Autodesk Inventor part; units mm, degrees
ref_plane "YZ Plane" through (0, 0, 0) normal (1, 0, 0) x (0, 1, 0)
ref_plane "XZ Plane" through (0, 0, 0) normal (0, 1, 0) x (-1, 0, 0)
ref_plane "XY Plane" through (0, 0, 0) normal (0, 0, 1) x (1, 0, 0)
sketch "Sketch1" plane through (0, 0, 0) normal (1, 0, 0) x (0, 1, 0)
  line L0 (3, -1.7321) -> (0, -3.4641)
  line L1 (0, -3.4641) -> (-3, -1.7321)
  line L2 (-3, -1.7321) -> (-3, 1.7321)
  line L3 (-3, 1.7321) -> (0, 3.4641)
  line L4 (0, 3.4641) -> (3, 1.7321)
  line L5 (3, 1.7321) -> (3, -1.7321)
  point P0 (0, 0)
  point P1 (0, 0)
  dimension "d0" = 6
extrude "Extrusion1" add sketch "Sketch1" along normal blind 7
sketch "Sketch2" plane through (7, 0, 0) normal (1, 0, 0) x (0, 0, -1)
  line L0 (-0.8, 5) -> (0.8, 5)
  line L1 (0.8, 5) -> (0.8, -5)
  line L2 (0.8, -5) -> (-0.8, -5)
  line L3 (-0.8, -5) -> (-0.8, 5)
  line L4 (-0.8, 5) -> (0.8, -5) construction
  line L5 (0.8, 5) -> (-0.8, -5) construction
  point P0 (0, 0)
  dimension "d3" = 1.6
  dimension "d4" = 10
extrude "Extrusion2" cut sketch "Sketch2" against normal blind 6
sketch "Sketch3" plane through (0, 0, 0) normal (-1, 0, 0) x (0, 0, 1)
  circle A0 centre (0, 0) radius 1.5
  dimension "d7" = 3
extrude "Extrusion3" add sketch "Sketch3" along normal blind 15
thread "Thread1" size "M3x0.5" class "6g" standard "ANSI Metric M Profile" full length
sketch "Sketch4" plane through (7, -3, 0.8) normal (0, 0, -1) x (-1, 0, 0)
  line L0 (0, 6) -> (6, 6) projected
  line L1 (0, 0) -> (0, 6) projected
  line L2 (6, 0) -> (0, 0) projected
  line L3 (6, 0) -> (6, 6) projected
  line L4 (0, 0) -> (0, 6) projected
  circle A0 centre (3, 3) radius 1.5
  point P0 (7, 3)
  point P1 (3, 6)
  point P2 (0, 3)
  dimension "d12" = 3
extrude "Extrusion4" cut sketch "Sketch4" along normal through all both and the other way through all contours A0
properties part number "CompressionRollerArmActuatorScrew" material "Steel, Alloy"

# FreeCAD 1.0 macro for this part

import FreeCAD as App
import Part
import Sketcher

V = App.Vector
Q = App.Units.Quantity

doc = App.newDocument("Part")
body = doc.addObject("PartDesign::Body", "Body")

# Sketch on YZ plane
sketch1 = body.newObject("Sketcher::SketchObject", "Sketch")
sketch1.AttachmentSupport = (doc.getObject("YZ_Plane"), [""])
sketch1.MapMode = "FlatFace"
sketch1.addGeometry([
    Part.LineSegment(V(0, -3.5, 0), V(3, -1.7, 0)),  # 0
    Part.LineSegment(V(3, -1.7, 0), V(3, 1.7, 0)),  # 1
    Part.LineSegment(V(3, 1.7, 0), V(0, 3.5, 0)),  # 2
    Part.LineSegment(V(0, 3.5, 0), V(-3, 1.7, 0)),  # 3
    Part.LineSegment(V(-3, 1.7, 0), V(-3, -1.7, 0)),  # 4
    Part.LineSegment(V(-3, -1.7, 0), V(0, -3.5, 0)),  # 5
], False)
sketch1.addConstraint([
    Sketcher.Constraint("Coincident", 0, 2, 1, 1),
    Sketcher.Constraint("Coincident", 1, 2, 2, 1),
    Sketcher.Constraint("Coincident", 2, 2, 3, 1),
    Sketcher.Constraint("Coincident", 3, 2, 4, 1),
    Sketcher.Constraint("Coincident", 4, 2, 5, 1),
    Sketcher.Constraint("Coincident", 5, 2, 0, 1),
    Sketcher.Constraint("Vertical", 1),
    Sketcher.Constraint("Vertical", 4),
    Sketcher.Constraint("Symmetric", 0, 2, 3, 2, -1, 1),
    Sketcher.Constraint("Symmetric", 2, 2, 5, 2, -1, 1),
    Sketcher.Constraint("PointOnObject", 2, 2, -2),
    Sketcher.Constraint("Parallel", 2, 5),
    Sketcher.Constraint("Horizontal", 1, 2, 3, 2),
    Sketcher.Constraint("DistanceX", 3, 2, 1, 2, 6.0),
    Sketcher.Constraint("Angle", 0, Q("29.9993 deg")),
    Sketcher.Constraint("DistanceY", 1, 1, 1, 2, 3.4642),
])
pad1 = body.newObject("PartDesign::Pad", "Pad")
pad1.Profile = sketch1
pad1.Length = 7

# Sketch on YZ plane
sketch2 = body.newObject("Sketcher::SketchObject", "Sketch001")
sketch2.AttachmentSupport = (doc.getObject("YZ_Plane"), [""])
sketch2.MapMode = "FlatFace"
sketch2.AttachmentOffset = App.Placement(V(0, 0, 7), App.Rotation())
sketch2.addGeometry([
    Part.LineSegment(V(5, -0.8, 0), V(5, 0.8, 0)),
    Part.LineSegment(V(5, 0.8, 0), V(-5, 0.8, 0)),
    Part.LineSegment(V(-5, 0.8, 0), V(-5, -0.8, 0)),
    Part.LineSegment(V(-5, -0.8, 0), V(5, -0.8, 0)),
], False)
sketch2.addConstraint([
    Sketcher.Constraint("Coincident", 0, 2, 1, 1),
    Sketcher.Constraint("Coincident", 1, 2, 2, 1),
    Sketcher.Constraint("Coincident", 2, 2, 3, 1),
    Sketcher.Constraint("Coincident", 3, 2, 0, 1),
    Sketcher.Constraint("Vertical", 0),
    Sketcher.Constraint("Horizontal", 1),
    Sketcher.Constraint("Vertical", 2),
    Sketcher.Constraint("Horizontal", 3),
    Sketcher.Constraint("Symmetric", 0, 2, 2, 2, -1, 1),
    Sketcher.Constraint("DistanceX", 1, 2, 1, 1, 10.0),
    Sketcher.Constraint("DistanceY", 0, 1, 0, 2, 1.6),
])
pocket1 = body.newObject("PartDesign::Pocket", "Pocket")
pocket1.Profile = sketch2
pocket1.Length = 6

# Sketch on YZ plane
sketch3 = body.newObject("Sketcher::SketchObject", "Sketch002")
sketch3.AttachmentSupport = (doc.getObject("YZ_Plane"), [""])
sketch3.MapMode = "FlatFace"
sketch3.addGeometry(Part.Circle(V(0, 0, 0), V(0, 0, 1), 1.5), False)
sketch3.addConstraint([
    Sketcher.Constraint("Coincident", 0, 3, -1, 1),
    Sketcher.Constraint("Diameter", 0, 3.0),
])
pad2 = body.newObject("PartDesign::Pad", "Pad001")
pad2.Profile = sketch3
pad2.Length = 15
pad2.Reversed = True

# Sketch on XY plane
sketch4 = body.newObject("Sketcher::SketchObject", "Sketch003")
sketch4.AttachmentSupport = (doc.getObject("XY_Plane"), [""])
sketch4.MapMode = "FlatFace"
sketch4.AttachmentOffset = App.Placement(V(0, 0, 0.8), App.Rotation())
sketch4.addGeometry(Part.Circle(V(4, 0, 0), V(0, 0, 1), 1.5), False)
sketch4.addConstraint([
    Sketcher.Constraint("PointOnObject", 0, 3, -1),
    Sketcher.Constraint("Diameter", 0, 3.0),
    Sketcher.Constraint("DistanceX", -1, 1, 0, 3, 4.0),
])
pocket2 = body.newObject("PartDesign::Pocket", "Pocket001")
pocket2.Profile = sketch4
pocket2.Type = "ThroughAll"
pocket2.Midplane = True

doc.recompute()
